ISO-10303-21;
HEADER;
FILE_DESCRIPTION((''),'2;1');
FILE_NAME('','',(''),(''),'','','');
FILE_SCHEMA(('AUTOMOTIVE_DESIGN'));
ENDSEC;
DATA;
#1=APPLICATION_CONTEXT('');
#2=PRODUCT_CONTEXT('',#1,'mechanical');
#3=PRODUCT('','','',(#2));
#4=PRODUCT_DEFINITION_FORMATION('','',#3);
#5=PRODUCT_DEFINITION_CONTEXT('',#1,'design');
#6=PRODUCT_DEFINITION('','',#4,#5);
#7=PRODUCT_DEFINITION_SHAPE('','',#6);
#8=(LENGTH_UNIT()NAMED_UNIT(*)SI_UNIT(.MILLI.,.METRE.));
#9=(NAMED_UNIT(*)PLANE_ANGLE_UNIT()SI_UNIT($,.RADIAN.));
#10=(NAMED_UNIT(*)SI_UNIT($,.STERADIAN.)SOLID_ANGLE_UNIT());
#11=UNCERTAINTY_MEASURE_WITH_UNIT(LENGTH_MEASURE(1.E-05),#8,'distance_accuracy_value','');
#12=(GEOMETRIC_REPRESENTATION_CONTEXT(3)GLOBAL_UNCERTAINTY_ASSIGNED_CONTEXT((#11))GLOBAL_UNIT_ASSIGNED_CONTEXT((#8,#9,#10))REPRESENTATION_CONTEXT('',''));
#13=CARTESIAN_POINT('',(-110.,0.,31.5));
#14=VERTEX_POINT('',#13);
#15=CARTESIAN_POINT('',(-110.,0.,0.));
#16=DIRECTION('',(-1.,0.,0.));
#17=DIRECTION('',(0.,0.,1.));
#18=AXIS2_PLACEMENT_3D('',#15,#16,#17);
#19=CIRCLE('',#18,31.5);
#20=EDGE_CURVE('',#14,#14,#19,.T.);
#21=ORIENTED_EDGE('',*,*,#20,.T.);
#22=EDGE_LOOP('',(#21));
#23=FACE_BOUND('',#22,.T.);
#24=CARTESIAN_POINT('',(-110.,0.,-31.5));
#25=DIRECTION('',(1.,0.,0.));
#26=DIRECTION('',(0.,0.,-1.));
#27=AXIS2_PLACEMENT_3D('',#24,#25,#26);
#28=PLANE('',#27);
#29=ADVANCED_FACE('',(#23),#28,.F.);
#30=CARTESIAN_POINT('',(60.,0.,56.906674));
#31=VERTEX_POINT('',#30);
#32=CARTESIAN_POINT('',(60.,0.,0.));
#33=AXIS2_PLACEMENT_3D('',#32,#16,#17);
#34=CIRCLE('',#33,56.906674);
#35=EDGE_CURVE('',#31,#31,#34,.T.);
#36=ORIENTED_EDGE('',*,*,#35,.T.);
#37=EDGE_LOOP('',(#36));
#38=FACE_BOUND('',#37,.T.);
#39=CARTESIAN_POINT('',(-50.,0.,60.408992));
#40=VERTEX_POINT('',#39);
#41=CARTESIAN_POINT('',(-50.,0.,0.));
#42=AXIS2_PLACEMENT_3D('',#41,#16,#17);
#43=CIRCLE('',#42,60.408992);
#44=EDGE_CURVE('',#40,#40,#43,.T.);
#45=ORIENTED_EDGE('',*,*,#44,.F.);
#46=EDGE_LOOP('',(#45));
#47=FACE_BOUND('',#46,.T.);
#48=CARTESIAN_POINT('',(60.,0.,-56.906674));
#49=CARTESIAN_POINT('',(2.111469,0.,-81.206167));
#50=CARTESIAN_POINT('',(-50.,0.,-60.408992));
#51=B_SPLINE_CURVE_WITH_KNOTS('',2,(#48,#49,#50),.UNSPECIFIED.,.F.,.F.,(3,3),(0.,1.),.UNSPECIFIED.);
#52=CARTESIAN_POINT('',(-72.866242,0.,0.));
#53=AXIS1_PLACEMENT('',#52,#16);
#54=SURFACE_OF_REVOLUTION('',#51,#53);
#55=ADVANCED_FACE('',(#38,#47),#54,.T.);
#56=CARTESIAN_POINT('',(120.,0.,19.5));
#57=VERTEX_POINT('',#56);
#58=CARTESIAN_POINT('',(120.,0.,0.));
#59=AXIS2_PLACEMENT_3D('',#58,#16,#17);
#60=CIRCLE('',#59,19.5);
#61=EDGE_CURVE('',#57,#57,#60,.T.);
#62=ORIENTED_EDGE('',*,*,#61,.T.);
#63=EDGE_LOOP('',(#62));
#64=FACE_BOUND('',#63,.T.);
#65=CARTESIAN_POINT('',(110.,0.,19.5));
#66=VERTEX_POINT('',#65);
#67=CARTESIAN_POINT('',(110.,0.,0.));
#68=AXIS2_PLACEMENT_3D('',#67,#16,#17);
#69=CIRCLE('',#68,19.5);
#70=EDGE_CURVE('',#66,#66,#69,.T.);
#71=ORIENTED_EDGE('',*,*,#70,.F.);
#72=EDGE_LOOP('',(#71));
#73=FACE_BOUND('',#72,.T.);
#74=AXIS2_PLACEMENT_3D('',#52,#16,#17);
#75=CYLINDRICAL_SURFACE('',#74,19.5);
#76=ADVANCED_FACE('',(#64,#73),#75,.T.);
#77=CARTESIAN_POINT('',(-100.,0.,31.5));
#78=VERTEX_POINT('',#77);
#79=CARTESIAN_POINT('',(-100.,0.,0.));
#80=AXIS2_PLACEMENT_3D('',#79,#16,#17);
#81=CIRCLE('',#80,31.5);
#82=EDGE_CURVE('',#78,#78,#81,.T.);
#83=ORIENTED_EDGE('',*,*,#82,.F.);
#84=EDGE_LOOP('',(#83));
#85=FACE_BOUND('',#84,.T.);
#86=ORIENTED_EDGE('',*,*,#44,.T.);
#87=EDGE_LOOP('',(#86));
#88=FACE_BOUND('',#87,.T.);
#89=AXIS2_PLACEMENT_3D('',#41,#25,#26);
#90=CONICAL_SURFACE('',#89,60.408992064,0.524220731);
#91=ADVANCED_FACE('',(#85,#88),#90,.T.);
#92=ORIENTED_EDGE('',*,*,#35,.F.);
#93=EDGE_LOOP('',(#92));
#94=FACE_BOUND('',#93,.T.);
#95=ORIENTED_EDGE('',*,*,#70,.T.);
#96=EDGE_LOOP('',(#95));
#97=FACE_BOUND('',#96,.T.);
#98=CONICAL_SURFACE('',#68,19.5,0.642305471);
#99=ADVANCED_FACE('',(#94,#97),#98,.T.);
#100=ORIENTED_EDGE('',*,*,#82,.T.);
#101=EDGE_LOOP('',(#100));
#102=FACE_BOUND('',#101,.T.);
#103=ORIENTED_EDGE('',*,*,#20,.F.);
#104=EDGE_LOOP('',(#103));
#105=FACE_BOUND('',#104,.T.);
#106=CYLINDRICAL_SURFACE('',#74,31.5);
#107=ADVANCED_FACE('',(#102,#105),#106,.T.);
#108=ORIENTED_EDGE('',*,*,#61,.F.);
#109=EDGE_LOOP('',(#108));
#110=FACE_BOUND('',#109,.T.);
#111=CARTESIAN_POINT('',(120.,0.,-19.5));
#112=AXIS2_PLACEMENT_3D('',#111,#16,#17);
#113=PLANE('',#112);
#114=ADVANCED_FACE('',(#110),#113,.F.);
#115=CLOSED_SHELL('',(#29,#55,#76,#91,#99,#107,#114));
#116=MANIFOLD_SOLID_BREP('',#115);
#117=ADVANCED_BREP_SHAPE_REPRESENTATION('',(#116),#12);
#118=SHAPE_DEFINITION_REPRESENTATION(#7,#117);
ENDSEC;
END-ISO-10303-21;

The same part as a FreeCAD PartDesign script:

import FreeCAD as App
import Part
import Sketcher

doc = App.newDocument("Part")
body = doc.addObject("PartDesign::Body", "Body")

# Sketch on XZ plane
sketch1 = doc.addObject("Sketcher::SketchObject", "Sketch")
body.addObject(sketch1)
sketch1.AttachmentSupport = (doc.XZ_Plane, [""])
sketch1.MapMode = "FlatFace"
sketch1.addGeometry([
    Part.LineSegment(App.Vector(-50, -60.408992, 0), App.Vector(-100, -31.5, 0)),  # 0
    Part.LineSegment(App.Vector(-100, -31.5, 0), App.Vector(-110, -31.5, 0)),  # 1
    Part.LineSegment(App.Vector(-110, -31.5, 0), App.Vector(-110, 0, 0)),  # 2
    Part.LineSegment(App.Vector(-110, 0, 0), App.Vector(120, 0, 0)),  # 3
    Part.LineSegment(App.Vector(120, 0, 0), App.Vector(120, -19.5, 0)),  # 4
    Part.LineSegment(App.Vector(120, -19.5, 0), App.Vector(110, -19.5, 0)),  # 5
    Part.LineSegment(App.Vector(110, -19.5, 0), App.Vector(60, -56.906674, 0)),  # 6
    Part.BSplineCurve([App.Vector(-50, -60.408992, 0), App.Vector(2.111469, -81.206167, 0), App.Vector(60, -56.906674, 0)], [3, 3], [0, 1], False, 2, [1, 1, 1], False),  # 7
], False)
sketch1.addConstraint([
    Sketcher.Constraint("Block", 7),
    Sketcher.Constraint("Coincident", 0, 2, 1, 1),
    Sketcher.Constraint("Coincident", 1, 2, 2, 1),
    Sketcher.Constraint("Coincident", 2, 2, 3, 1),
    Sketcher.Constraint("Coincident", 3, 2, 4, 1),
    Sketcher.Constraint("Coincident", 4, 2, 5, 1),
    Sketcher.Constraint("Coincident", 5, 2, 6, 1),
    Sketcher.Constraint("Coincident", 6, 2, 7, 2),
    Sketcher.Constraint("Coincident", 7, 1, 0, 1),
    Sketcher.Constraint("Horizontal", 1),
    Sketcher.Constraint("Vertical", 2),
    Sketcher.Constraint("Horizontal", 3),
    Sketcher.Constraint("Vertical", 4),
    Sketcher.Constraint("Horizontal", 5),
    Sketcher.Constraint("PointOnObject", 2, 2, -1),
    Sketcher.Constraint("Equal", 1, 5),
    Sketcher.Constraint("DistanceX", 1, 2, 1, 1, 10.0),
    Sketcher.Constraint("DistanceX", 3, 1, 3, 2, 230.0),
    Sketcher.Constraint("DistanceY", 2, 1, 2, 2, 31.5),
    Sketcher.Constraint("DistanceY", 4, 2, 4, 1, 19.5),
    Sketcher.Constraint("DistanceX", 0, 2, -1, 1, 100.0),
])
revolution = doc.addObject("PartDesign::Revolution", "Revolution")
body.addObject(revolution)
revolution.Profile = sketch1
revolution.ReferenceAxis = (sketch1, ["H_Axis"])
revolution.Angle = 360

doc.recompute()
